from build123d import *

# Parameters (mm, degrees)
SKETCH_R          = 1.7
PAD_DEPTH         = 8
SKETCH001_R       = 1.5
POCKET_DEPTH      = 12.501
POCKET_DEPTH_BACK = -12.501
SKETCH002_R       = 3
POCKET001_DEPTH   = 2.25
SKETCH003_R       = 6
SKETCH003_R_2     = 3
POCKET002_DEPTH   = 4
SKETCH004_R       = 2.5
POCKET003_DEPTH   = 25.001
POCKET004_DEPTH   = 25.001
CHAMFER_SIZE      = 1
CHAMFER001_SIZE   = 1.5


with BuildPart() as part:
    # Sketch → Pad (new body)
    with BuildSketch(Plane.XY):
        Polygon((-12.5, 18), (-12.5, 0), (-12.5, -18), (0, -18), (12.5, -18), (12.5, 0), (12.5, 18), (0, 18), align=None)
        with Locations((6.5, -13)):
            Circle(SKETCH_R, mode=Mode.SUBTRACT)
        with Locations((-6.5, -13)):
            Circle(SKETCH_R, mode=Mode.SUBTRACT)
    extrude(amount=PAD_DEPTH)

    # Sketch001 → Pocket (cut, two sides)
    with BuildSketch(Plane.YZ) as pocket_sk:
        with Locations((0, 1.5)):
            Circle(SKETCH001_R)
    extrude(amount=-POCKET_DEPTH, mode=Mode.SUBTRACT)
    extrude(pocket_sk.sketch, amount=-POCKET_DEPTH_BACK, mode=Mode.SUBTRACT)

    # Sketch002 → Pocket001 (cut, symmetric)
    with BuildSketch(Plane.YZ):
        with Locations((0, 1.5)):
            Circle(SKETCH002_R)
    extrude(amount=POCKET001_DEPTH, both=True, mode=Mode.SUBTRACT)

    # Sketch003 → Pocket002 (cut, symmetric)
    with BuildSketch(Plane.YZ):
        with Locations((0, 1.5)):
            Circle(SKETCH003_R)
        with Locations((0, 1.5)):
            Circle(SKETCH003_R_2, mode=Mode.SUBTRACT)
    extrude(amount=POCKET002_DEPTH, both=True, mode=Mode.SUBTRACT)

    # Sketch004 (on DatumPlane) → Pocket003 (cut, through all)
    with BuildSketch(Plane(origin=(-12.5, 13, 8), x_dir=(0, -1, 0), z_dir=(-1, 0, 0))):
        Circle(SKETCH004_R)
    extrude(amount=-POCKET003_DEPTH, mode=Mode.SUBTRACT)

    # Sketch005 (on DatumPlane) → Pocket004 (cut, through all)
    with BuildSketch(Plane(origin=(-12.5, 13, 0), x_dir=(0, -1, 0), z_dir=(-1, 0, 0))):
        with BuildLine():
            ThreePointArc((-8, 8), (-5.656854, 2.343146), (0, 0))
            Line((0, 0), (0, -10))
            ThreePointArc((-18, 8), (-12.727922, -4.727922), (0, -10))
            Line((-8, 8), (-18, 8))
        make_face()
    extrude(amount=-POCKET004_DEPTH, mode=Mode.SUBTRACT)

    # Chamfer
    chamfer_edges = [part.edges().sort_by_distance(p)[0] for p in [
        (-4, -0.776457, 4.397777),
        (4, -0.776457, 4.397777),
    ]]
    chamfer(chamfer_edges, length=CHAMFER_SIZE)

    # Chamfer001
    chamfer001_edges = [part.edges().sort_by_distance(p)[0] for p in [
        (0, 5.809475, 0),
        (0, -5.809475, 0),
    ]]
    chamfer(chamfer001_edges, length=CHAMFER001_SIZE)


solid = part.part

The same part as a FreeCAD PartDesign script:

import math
import FreeCAD as App
import Part
import Sketcher
from FreeCAD import Vector
Q = App.Units.Quantity


def edges_at(feature, points):
    """Names of the edges that pass closest to the given points."""
    edges = feature.Shape.Edges
    near = lambda p: min(range(len(edges)), key=lambda i: edges[i].distToShape(Part.Vertex(*p))[0])
    return sorted({f"Edge{near(p) + 1}" for p in points})


def add_polygon(sketch, points):
    """Adds a closed chain of lines whose ends are joined by coincident constraints."""
    first, n = sketch.GeometryCount, len(points)
    for a, b in zip(points, points[1:] + points[:1]):
        sketch.addGeometry(Part.LineSegment(App.Vector(*a, 0), App.Vector(*b, 0)), False)
    for i in range(n):
        sketch.addConstraint(Sketcher.Constraint("Coincident", first + i, 2, first + (i + 1) % n, 1))

doc = App.newDocument("Part")
body = doc.addObject("PartDesign::Body", "Body")

# Sketch on XY plane
sketch1 = doc.addObject("Sketcher::SketchObject", "Sketch")
body.addObject(sketch1)
sketch1.AttachmentSupport = (doc.XY_Plane, [""])
sketch1.MapMode = "FlatFace"
add_polygon(sketch1, [(-12.5, 18), (-12.5, -18), (12.5, -18), (12.5, 18)])  # lines 0-3
sketch1.addGeometry(Part.Circle(Vector(-6.5, -13, 0), Vector(0, 0, 1), 1.7), False)  # 4
sketch1.addGeometry(Part.Circle(Vector(6.5, -13, 0), Vector(0, 0, 1), 1.7), False)  # 5
sketch1.addConstraint(Sketcher.Constraint("Vertical", 0))
sketch1.addConstraint(Sketcher.Constraint("Horizontal", 1))
sketch1.addConstraint(Sketcher.Constraint("Vertical", 2))
sketch1.addConstraint(Sketcher.Constraint("Horizontal", 3))
sketch1.addConstraint(Sketcher.Constraint("Equal", 4, 5))
sketch1.addConstraint(Sketcher.Constraint("Symmetric", 0, 2, 2, 2, -1, 1))
sketch1.addConstraint(Sketcher.Constraint("Symmetric", 4, 3, 5, 3, -2))
sketch1.addConstraint(Sketcher.Constraint("Diameter", 4, Q("3.4 mm")))
sketch1.addConstraint(Sketcher.Constraint("DistanceX", 1, 1, 1, 2, Q("25 mm")))
sketch1.addConstraint(Sketcher.Constraint("DistanceY", 0, 2, 0, 1, Q("36 mm")))
sketch1.addConstraint(Sketcher.Constraint("DistanceY", 4, 3, -1, 1, Q("13 mm")))
sketch1.addConstraint(Sketcher.Constraint("DistanceX", 4, 3, 5, 3, Q("13 mm")))
pad1 = doc.addObject("PartDesign::Pad", "Pad")
body.addObject(pad1)
pad1.Profile = sketch1
pad1.Length = 8

# Sketch on YZ plane
sketch2 = doc.addObject("Sketcher::SketchObject", "Sketch001")
body.addObject(sketch2)
sketch2.AttachmentSupport = (doc.YZ_Plane, [""])
sketch2.MapMode = "FlatFace"
sketch2.addGeometry(Part.Circle(Vector(0, 1.5, 0), Vector(0, 0, 1), 1.5), False)
sketch2.addConstraint(Sketcher.Constraint("PointOnObject", 0, 3, -2))
sketch2.addConstraint(Sketcher.Constraint("Diameter", 0, Q("3 mm")))
sketch2.addConstraint(Sketcher.Constraint("DistanceY", -1, 1, 0, 3, Q("1.5 mm")))
pocket1 = doc.addObject("PartDesign::Pocket", "Pocket")
body.addObject(pocket1)
pocket1.Profile = sketch2
pocket1.Type = "ThroughAll"
pocket1.Midplane = True

# Sketch on YZ plane
sketch3 = doc.addObject("Sketcher::SketchObject", "Sketch002")
body.addObject(sketch3)
sketch3.AttachmentSupport = (doc.YZ_Plane, [""])
sketch3.MapMode = "FlatFace"
sketch3.addGeometry(Part.Circle(Vector(0, 1.5, 0), Vector(0, 0, 1), 3), False)
sketch3.addConstraint(Sketcher.Constraint("PointOnObject", 0, 3, -2))
sketch3.addConstraint(Sketcher.Constraint("Diameter", 0, Q("6 mm")))
sketch3.addConstraint(Sketcher.Constraint("DistanceY", -1, 1, 0, 3, Q("1.5 mm")))
pocket2 = doc.addObject("PartDesign::Pocket", "Pocket001")
body.addObject(pocket2)
pocket2.Profile = sketch3
pocket2.Length = 4.5
pocket2.Midplane = True

# Sketch on YZ plane
sketch4 = doc.addObject("Sketcher::SketchObject", "Sketch003")
body.addObject(sketch4)
sketch4.AttachmentSupport = (doc.YZ_Plane, [""])
sketch4.MapMode = "FlatFace"
sketch4.addGeometry(Part.Circle(Vector(0, 1.5, 0), Vector(0, 0, 1), 6), False)
sketch4.addGeometry(Part.Circle(Vector(0, 1.5, 0), Vector(0, 0, 1), 3), False)
sketch4.addConstraint(Sketcher.Constraint("Coincident", 1, 3, 0, 3))
sketch4.addConstraint(Sketcher.Constraint("PointOnObject", 0, 3, -2))
sketch4.addConstraint(Sketcher.Constraint("Diameter", 0, Q("12 mm")))
sketch4.addConstraint(Sketcher.Constraint("Diameter", 1, Q("6 mm")))
sketch4.addConstraint(Sketcher.Constraint("DistanceY", -1, 1, 0, 3, Q("1.5 mm")))
pocket3 = doc.addObject("PartDesign::Pocket", "Pocket002")
body.addObject(pocket3)
pocket3.Profile = sketch4
pocket3.Length = 8
pocket3.Midplane = True

# Sketch on YZ plane
sketch5 = doc.addObject("Sketcher::SketchObject", "Sketch004")
body.addObject(sketch5)
sketch5.AttachmentSupport = (doc.YZ_Plane, [""])
sketch5.MapMode = "FlatFace"
sketch5.AttachmentOffset = App.Placement(Vector(0, 0, -12.5), App.Rotation())
sketch5.addGeometry(Part.Circle(Vector(13, 8, 0), Vector(0, 0, 1), 2.5), False)
sketch5.addConstraint(Sketcher.Constraint("Diameter", 0, Q("5 mm")))
sketch5.addConstraint(Sketcher.Constraint("DistanceX", -1, 1, 0, 3, Q("13 mm")))
sketch5.addConstraint(Sketcher.Constraint("DistanceY", -1, 1, 0, 3, Q("8 mm")))
pocket4 = doc.addObject("PartDesign::Pocket", "Pocket003")
body.addObject(pocket4)
pocket4.Profile = sketch5
pocket4.Type = "ThroughAll"
pocket4.Reversed = True

# Sketch on YZ plane
sketch6 = doc.addObject("Sketcher::SketchObject", "Sketch005")
body.addObject(sketch6)
sketch6.AttachmentSupport = (doc.YZ_Plane, [""])
sketch6.MapMode = "FlatFace"
sketch6.AttachmentOffset = App.Placement(Vector(0, 0, -12.5), App.Rotation())
sketch6.addGeometry(Part.ArcOfCircle(Part.Circle(Vector(12.999999, 8.000001, 0), Vector(0, 0, 1), 8.000001), math.radians(-89.999994), math.radians(-0.000006)), False)
sketch6.addGeometry(Part.LineSegment(Vector(21, 8, 0), Vector(31, 8, 0)), False)
sketch6.addGeometry(Part.ArcOfCircle(Part.Circle(Vector(13, 8, 0), Vector(0, 0, 1), 18), math.radians(-89.999999), math.radians(-0.000001)), False)
sketch6.addGeometry(Part.LineSegment(Vector(13, -10, 0), Vector(13, 0, 0)), False)
sketch6.addConstraint(Sketcher.Constraint("Coincident", 0, 2, 1, 1))
sketch6.addConstraint(Sketcher.Constraint("Coincident", 1, 2, 2, 2))
sketch6.addConstraint(Sketcher.Constraint("Coincident", 2, 1, 3, 1))
sketch6.addConstraint(Sketcher.Constraint("Coincident", 3, 2, 0, 1))
sketch6.addConstraint(Sketcher.Constraint("Horizontal", 1))
sketch6.addConstraint(Sketcher.Constraint("Vertical", 3))
sketch6.addConstraint(Sketcher.Constraint("Coincident", 2, 3, 0, 3))
sketch6.addConstraint(Sketcher.Constraint("PointOnObject", 3, 2, -1))
sketch6.addConstraint(Sketcher.Constraint("Horizontal", 2, 3, 0, 2))
sketch6.addConstraint(Sketcher.Constraint("Vertical", 0, 3, 2, 1))
sketch6.addConstraint(Sketcher.Constraint("Radius", 0, Q("8.000001 mm")))
sketch6.addConstraint(Sketcher.Constraint("Radius", 2, Q("18 mm")))
sketch6.addConstraint(Sketcher.Constraint("DistanceX", -1, 1, 0, 3, Q("12.999999 mm")))
pocket5 = doc.addObject("PartDesign::Pocket", "Pocket004")
body.addObject(pocket5)
pocket5.Profile = sketch6
pocket5.Type = "ThroughAll"
pocket5.Reversed = True
doc.recompute()

chamfer = doc.addObject("PartDesign::Chamfer", "Chamfer")
body.addObject(chamfer)
chamfer.Base = (pocket5, edges_at(pocket5, [(-4, 0, 4.5), (4, 0, 4.5)]))
chamfer.Size = 1
doc.recompute()

chamfer2 = doc.addObject("PartDesign::Chamfer", "Chamfer001")
body.addObject(chamfer2)
chamfer2.Base = (chamfer, edges_at(chamfer, [(0, 5.809, 0), (0, -5.809, 0)]))
chamfer2.Size = 1.5

doc.recompute()
